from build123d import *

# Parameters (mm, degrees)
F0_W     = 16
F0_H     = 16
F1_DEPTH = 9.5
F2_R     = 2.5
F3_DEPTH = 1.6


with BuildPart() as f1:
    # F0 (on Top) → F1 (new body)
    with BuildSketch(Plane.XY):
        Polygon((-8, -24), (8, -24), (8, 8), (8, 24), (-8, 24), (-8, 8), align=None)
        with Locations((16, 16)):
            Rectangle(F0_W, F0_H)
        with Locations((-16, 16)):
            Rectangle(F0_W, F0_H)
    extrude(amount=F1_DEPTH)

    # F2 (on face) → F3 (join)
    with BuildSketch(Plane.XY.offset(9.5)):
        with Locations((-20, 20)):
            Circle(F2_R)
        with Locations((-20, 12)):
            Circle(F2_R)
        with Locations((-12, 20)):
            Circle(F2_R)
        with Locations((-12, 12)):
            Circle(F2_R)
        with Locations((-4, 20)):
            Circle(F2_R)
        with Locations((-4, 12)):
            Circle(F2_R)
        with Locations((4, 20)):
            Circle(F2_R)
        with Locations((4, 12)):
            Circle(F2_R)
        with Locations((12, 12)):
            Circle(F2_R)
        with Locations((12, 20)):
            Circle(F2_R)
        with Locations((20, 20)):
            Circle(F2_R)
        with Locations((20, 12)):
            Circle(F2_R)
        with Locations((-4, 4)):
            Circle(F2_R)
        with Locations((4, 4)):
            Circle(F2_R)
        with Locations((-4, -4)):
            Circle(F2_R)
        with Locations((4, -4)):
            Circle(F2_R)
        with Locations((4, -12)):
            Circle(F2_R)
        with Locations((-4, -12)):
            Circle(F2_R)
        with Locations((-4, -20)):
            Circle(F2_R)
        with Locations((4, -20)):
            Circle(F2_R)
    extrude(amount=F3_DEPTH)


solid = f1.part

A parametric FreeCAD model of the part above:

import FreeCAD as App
import Part
import Sketcher

V = App.Vector


def add_polygon(sketch, points):
    """Adds a closed chain of lines whose ends are joined by coincident constraints."""
    first, n = sketch.GeometryCount, len(points)
    for a, b in zip(points, points[1:] + points[:1]):
        sketch.addGeometry(Part.LineSegment(App.Vector(*a, 0), App.Vector(*b, 0)), False)
    for i in range(n):
        sketch.addConstraint(Sketcher.Constraint("Coincident", first + i, 2, first + (i + 1) % n, 1))

doc = App.newDocument("Part")
body = doc.addObject("PartDesign::Body", "Body")

sketch1 = body.newObject("Sketcher::SketchObject", "Sketch")
sketch1.AttachmentSupport = (doc.getObject("XY_Plane"), [""])
sketch1.MapMode = "FlatFace"
add_polygon(sketch1, [(-8, -24), (8, -24), (8, 8), (24, 8), (24, 24), (-24, 24), (-24, 8), (-8, 8)])
sketch1.addConstraint([
    Sketcher.Constraint("Horizontal", 0),
    Sketcher.Constraint("Vertical", 1),
    Sketcher.Constraint("Horizontal", 2),
    Sketcher.Constraint("Vertical", 3),
    Sketcher.Constraint("Horizontal", 4),
    Sketcher.Constraint("Vertical", 5),
    Sketcher.Constraint("Horizontal", 6),
    Sketcher.Constraint("Vertical", 7),
    Sketcher.Constraint("Symmetric", 2, 2, 5, 2, -2),
    Sketcher.Constraint("Equal", 0, 2),
    Sketcher.Constraint("Equal", 2, 6),
    Sketcher.Constraint("Equal", 6, 3),
    Sketcher.Constraint("DistanceX", 0, 1, 0, 2, 16.0),
    Sketcher.Constraint("DistanceY", 1, 1, 1, 2, 32.0),
    Sketcher.Constraint("DistanceY", 0, 2, -1, 1, 24.0),
])
pad1 = body.newObject("PartDesign::Pad", "Pad")
pad1.Profile = sketch1
pad1.Length = 9.5

sketch2 = body.newObject("Sketcher::SketchObject", "Sketch001")
sketch2.AttachmentSupport = (doc.getObject("XY_Plane"), [""])
sketch2.MapMode = "FlatFace"
sketch2.AttachmentOffset = App.Placement(V(0, 0, 9.5), App.Rotation())
sketch2.addGeometry([
    Part.Circle(V(-20, 20, 0), V(0, 0, 1), 2.5),
    Part.Circle(V(-20, 12, 0), V(0, 0, 1), 2.5),
    Part.Circle(V(-12, 20, 0), V(0, 0, 1), 2.5),
    Part.Circle(V(-12, 12, 0), V(0, 0, 1), 2.5),
    Part.Circle(V(-4, 20, 0), V(0, 0, 1), 2.5),
    Part.Circle(V(-4, 12, 0), V(0, 0, 1), 2.5),
    Part.Circle(V(4, 20, 0), V(0, 0, 1), 2.5),
    Part.Circle(V(4, 12, 0), V(0, 0, 1), 2.5),
    Part.Circle(V(12, 12, 0), V(0, 0, 1), 2.5),
    Part.Circle(V(12, 20, 0), V(0, 0, 1), 2.5),
    Part.Circle(V(20, 20, 0), V(0, 0, 1), 2.5),
    Part.Circle(V(20, 12, 0), V(0, 0, 1), 2.5),
    Part.Circle(V(-4, 4, 0), V(0, 0, 1), 2.5),
    Part.Circle(V(4, 4, 0), V(0, 0, 1), 2.5),
    Part.Circle(V(-4, -4, 0), V(0, 0, 1), 2.5),
    Part.Circle(V(4, -4, 0), V(0, 0, 1), 2.5),
    Part.Circle(V(4, -12, 0), V(0, 0, 1), 2.5),
    Part.Circle(V(-4, -12, 0), V(0, 0, 1), 2.5),
    Part.Circle(V(-4, -20, 0), V(0, 0, 1), 2.5),
    Part.Circle(V(4, -20, 0), V(0, 0, 1), 2.5),
], False)
sketch2.addConstraint([
    Sketcher.Constraint("Equal", 0, 1),
    Sketcher.Constraint("Equal", 1, 2),
    Sketcher.Constraint("Equal", 2, 3),
    Sketcher.Constraint("Equal", 3, 4),
    Sketcher.Constraint("Equal", 4, 5),
    Sketcher.Constraint("Equal", 5, 6),
    Sketcher.Constraint("Equal", 6, 7),
    Sketcher.Constraint("Equal", 7, 8),
    Sketcher.Constraint("Equal", 8, 9),
    Sketcher.Constraint("Equal", 9, 10),
    Sketcher.Constraint("Equal", 10, 11),
    Sketcher.Constraint("Equal", 11, 12),
    Sketcher.Constraint("Equal", 12, 13),
    Sketcher.Constraint("Equal", 13, 14),
    Sketcher.Constraint("Equal", 14, 15),
    Sketcher.Constraint("Equal", 15, 16),
    Sketcher.Constraint("Equal", 16, 17),
    Sketcher.Constraint("Equal", 17, 18),
    Sketcher.Constraint("Equal", 18, 19),
    Sketcher.Constraint("Symmetric", 13, 3, 14, 3, -1, 1),
    Sketcher.Constraint("Symmetric", 12, 3, 15, 3, -1, 1),
    Sketcher.Constraint("Symmetric", 5, 3, 16, 3, -1, 1),
    Sketcher.Constraint("Symmetric", 7, 3, 17, 3, -1, 1),
    Sketcher.Constraint("Symmetric", 6, 3, 18, 3, -1, 1),
    Sketcher.Constraint("Symmetric", 4, 3, 19, 3, -1, 1),
    Sketcher.Constraint("Symmetric", 4, 3, 6, 3, -2),
    Sketcher.Constraint("Symmetric", 5, 3, 7, 3, -2),
    Sketcher.Constraint("Symmetric", 3, 3, 8, 3, -2),
    Sketcher.Constraint("Symmetric", 2, 3, 9, 3, -2),
    Sketcher.Constraint("Symmetric", 0, 3, 10, 3, -2),
    Sketcher.Constraint("Symmetric", 1, 3, 11, 3, -2),
    Sketcher.Constraint("Symmetric", 12, 3, 13, 3, -2),
    Sketcher.Constraint("Horizontal", 0, 3, 2, 3),
    Sketcher.Constraint("Horizontal", 1, 3, 3, 3),
    Sketcher.Constraint("Horizontal", 2, 3, 4, 3),
    Sketcher.Constraint("Horizontal", 3, 3, 5, 3),
    Sketcher.Constraint("Vertical", 0, 3, 1, 3),
    Sketcher.Constraint("Vertical", 2, 3, 3, 3),
    Sketcher.Constraint("Vertical", 4, 3, 5, 3),
    Sketcher.Constraint("Vertical", 5, 3, 12, 3),
    Sketcher.Constraint("Diameter", 0, 5.0),
    Sketcher.Constraint("DistanceX", 0, 3, -1, 1, 20.0),
    Sketcher.Constraint("DistanceY", -1, 1, 0, 3, 20.0),
    Sketcher.Constraint("DistanceY", -1, 1, 1, 3, 12.0),
    Sketcher.Constraint("DistanceX", 2, 3, -1, 1, 12.0),
    Sketcher.Constraint("DistanceX", 4, 3, -1, 1, 4.0),
    Sketcher.Constraint("DistanceY", -1, 1, 12, 3, 4.0),
])
pad2 = body.newObject("PartDesign::Pad", "Pad001")
pad2.Profile = sketch2
pad2.Length = 1.6

doc.recompute()
